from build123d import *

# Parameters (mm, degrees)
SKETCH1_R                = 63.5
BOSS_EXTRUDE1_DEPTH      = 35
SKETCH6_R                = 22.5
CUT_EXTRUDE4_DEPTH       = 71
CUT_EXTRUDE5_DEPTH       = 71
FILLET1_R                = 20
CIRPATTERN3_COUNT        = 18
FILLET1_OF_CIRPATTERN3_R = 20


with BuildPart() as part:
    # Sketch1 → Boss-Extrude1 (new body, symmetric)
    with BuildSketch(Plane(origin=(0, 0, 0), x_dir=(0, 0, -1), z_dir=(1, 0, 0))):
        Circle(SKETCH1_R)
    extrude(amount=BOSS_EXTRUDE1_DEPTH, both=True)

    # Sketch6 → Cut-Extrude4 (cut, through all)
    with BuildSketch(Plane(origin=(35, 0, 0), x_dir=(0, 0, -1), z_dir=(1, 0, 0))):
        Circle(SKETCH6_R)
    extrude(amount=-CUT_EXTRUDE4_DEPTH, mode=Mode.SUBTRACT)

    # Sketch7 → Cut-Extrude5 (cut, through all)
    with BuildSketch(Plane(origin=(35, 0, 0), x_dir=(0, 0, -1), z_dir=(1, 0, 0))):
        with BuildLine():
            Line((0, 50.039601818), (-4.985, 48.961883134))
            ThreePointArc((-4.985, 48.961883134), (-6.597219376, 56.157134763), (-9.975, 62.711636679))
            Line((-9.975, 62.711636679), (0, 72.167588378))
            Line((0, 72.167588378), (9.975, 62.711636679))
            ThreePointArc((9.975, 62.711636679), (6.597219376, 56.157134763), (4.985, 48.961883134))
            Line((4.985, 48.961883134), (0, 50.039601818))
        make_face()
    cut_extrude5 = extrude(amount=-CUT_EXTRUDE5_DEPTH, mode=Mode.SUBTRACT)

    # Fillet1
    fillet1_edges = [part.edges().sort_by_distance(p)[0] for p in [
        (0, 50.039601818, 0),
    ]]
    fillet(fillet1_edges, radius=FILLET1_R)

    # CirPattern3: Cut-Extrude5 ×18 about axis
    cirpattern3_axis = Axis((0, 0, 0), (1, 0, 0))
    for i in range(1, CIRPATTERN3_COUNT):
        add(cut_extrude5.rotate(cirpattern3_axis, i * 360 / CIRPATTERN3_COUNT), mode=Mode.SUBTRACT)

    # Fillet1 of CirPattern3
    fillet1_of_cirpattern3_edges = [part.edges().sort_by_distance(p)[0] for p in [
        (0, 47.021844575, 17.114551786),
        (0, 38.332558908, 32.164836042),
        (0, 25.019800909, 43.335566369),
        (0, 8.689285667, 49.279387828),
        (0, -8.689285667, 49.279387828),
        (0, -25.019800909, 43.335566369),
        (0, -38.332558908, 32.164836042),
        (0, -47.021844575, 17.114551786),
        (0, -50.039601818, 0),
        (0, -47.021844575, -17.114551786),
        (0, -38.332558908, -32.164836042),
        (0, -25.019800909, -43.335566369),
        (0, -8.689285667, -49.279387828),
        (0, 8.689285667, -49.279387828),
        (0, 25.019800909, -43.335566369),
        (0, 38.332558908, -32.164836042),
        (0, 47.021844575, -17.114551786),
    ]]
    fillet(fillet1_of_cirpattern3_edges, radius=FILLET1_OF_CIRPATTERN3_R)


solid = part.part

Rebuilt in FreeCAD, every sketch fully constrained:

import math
import FreeCAD as App
import Part
import Sketcher
from FreeCAD import Vector
Q = App.Units.Quantity


def edges_at(feature, points):
    """Names of the edges that pass closest to the given points."""
    edges = feature.Shape.Edges
    near = lambda p: min(range(len(edges)), key=lambda i: edges[i].distToShape(Part.Vertex(*p))[0])
    return sorted({f"Edge{near(p) + 1}" for p in points})

doc = App.newDocument("Part")
body = doc.addObject("PartDesign::Body", "Body")

# Sketch on YZ plane
sketch1 = body.newObject("Sketcher::SketchObject", "Sketch")
sketch1.AttachmentSupport = (doc.getObject("YZ_Plane"), [""])
sketch1.MapMode = "FlatFace"
sketch1.addGeometry(Part.Circle(Vector(0, 0, 0), Vector(0, 0, 1), 63.5), False)
sketch1.addConstraint(Sketcher.Constraint("Coincident", 0, 3, -1, 1))
sketch1.addConstraint(Sketcher.Constraint("Diameter", 0, Q("127 mm")))
pad1 = body.newObject("PartDesign::Pad", "Pad")
pad1.Profile = sketch1
pad1.Length = 70
pad1.Midplane = True

# Sketch on YZ plane
sketch2 = body.newObject("Sketcher::SketchObject", "Sketch001")
sketch2.AttachmentSupport = (doc.getObject("YZ_Plane"), [""])
sketch2.MapMode = "FlatFace"
sketch2.AttachmentOffset = App.Placement(Vector(0, 0, 35), App.Rotation())
sketch2.addGeometry(Part.Circle(Vector(0, 0, 0), Vector(0, 0, 1), 22.5), False)
sketch2.addConstraint(Sketcher.Constraint("Coincident", 0, 3, -1, 1))
sketch2.addConstraint(Sketcher.Constraint("Diameter", 0, Q("45 mm")))
pocket1 = body.newObject("PartDesign::Pocket", "Pocket")
pocket1.Profile = sketch2
pocket1.Type = "ThroughAll"

# Sketch on YZ plane
sketch3 = body.newObject("Sketcher::SketchObject", "Sketch002")
sketch3.AttachmentSupport = (doc.getObject("YZ_Plane"), [""])
sketch3.MapMode = "FlatFace"
sketch3.AttachmentOffset = App.Placement(Vector(0, 0, 35), App.Rotation())
sketch3.addGeometry(Part.LineSegment(Vector(48.961883, 4.985, 0), Vector(50.039602, 0, 0)), False)
sketch3.addGeometry(Part.LineSegment(Vector(50.039602, 0, 0), Vector(48.961883, -4.985, 0)), False)
sketch3.addGeometry(Part.ArcOfCircle(Part.Circle(Vector(46.281726, -33.808528, 0), Vector(0, 0, 1), 28.947867), math.radians(55.419126), math.radians(84.687626)), False)
sketch3.addGeometry(Part.LineSegment(Vector(62.711637, -9.975, 0), Vector(72.167588, 0, 0)), False)
sketch3.addGeometry(Part.LineSegment(Vector(72.167588, 0, 0), Vector(62.711637, 9.975, 0)), False)
sketch3.addGeometry(Part.ArcOfCircle(Part.Circle(Vector(46.281726, 33.808528, 0), Vector(0, 0, 1), 28.947867), math.radians(-84.687626), math.radians(-55.419126)), False)
sketch3.addConstraint(Sketcher.Constraint("Coincident", 0, 2, 1, 1))
sketch3.addConstraint(Sketcher.Constraint("Coincident", 1, 2, 2, 2))
sketch3.addConstraint(Sketcher.Constraint("Coincident", 2, 1, 3, 1))
sketch3.addConstraint(Sketcher.Constraint("Coincident", 3, 2, 4, 1))
sketch3.addConstraint(Sketcher.Constraint("Coincident", 4, 2, 5, 2))
sketch3.addConstraint(Sketcher.Constraint("Coincident", 5, 1, 0, 1))
sketch3.addConstraint(Sketcher.Constraint("Equal", 2, 5))
sketch3.addConstraint(Sketcher.Constraint("Symmetric", 2, 3, 5, 3, -1))
sketch3.addConstraint(Sketcher.Constraint("PointOnObject", 0, 2, -1))
sketch3.addConstraint(Sketcher.Constraint("PointOnObject", 3, 2, -1))
sketch3.addConstraint(Sketcher.Constraint("Vertical", 2, 1, 4, 2))
sketch3.addConstraint(Sketcher.Constraint("Vertical", 1, 2, 5, 1))
sketch3.addConstraint(Sketcher.Constraint("DistanceY", 2, 1, 1, 2, Q("4.99 mm")))
sketch3.addConstraint(Sketcher.Constraint("DistanceY", 2, 1, 4, 2, Q("19.95 mm")))
sketch3.addConstraint(Sketcher.Constraint("Radius", 2, Q("28.947867 mm")))
sketch3.addConstraint(Sketcher.Constraint("DistanceX", -1, 1, 0, 2, Q("50.039602 mm")))
sketch3.addConstraint(Sketcher.Constraint("Distance", 3, Q("13.744659 mm")))
sketch3.addConstraint(Sketcher.Constraint("DistanceY", 2, 3, -1, 1, Q("33.808528 mm")))
sketch3.addConstraint(Sketcher.Constraint("DistanceX", -1, 1, 3, 2, Q("72.167588 mm")))
pocket2 = body.newObject("PartDesign::Pocket", "Pocket001")
pocket2.Profile = sketch3
pocket2.Type = "ThroughAll"
doc.recompute()

fillet = body.newObject("PartDesign::Fillet", "Fillet")
fillet.Base = (pocket2, edges_at(pocket2, [(0, 50.04, 0)]))
fillet.Radius = 20
doc.recompute()

polarpattern = body.newObject("PartDesign::PolarPattern", "PolarPattern")
polarpattern.Originals = [pocket2]
polarpattern.Axis = (doc.getObject("X_Axis"), [""])
polarpattern.Angle = 360
polarpattern.Occurrences = 18
body.Tip = polarpattern
doc.recompute()

fillet2 = body.newObject("PartDesign::Fillet", "Fillet001")
fillet2.Base = (polarpattern, edges_at(polarpattern, [
    (0, 47.022, 17.115),
    (0, 38.333, 32.165),
    (0, 25.02, 43.336),
    (0, 8.689, 49.279),
    (0, -8.689, 49.279),
    (0, -25.02, 43.336),
    (0, -38.333, 32.165),
    (0, -47.022, 17.115),
    (0, -50.04, 0),
    (0, -47.022, -17.115),
    (0, -38.333, -32.165),
    (0, -25.02, -43.336),
    (0, -8.689, -49.279),
    (0, 8.689, -49.279),
    (0, 25.02, -43.336),
    (0, 38.333, -32.165),
    (0, 47.022, -17.115),
]))
fillet2.Radius = 20

doc.recompute()
